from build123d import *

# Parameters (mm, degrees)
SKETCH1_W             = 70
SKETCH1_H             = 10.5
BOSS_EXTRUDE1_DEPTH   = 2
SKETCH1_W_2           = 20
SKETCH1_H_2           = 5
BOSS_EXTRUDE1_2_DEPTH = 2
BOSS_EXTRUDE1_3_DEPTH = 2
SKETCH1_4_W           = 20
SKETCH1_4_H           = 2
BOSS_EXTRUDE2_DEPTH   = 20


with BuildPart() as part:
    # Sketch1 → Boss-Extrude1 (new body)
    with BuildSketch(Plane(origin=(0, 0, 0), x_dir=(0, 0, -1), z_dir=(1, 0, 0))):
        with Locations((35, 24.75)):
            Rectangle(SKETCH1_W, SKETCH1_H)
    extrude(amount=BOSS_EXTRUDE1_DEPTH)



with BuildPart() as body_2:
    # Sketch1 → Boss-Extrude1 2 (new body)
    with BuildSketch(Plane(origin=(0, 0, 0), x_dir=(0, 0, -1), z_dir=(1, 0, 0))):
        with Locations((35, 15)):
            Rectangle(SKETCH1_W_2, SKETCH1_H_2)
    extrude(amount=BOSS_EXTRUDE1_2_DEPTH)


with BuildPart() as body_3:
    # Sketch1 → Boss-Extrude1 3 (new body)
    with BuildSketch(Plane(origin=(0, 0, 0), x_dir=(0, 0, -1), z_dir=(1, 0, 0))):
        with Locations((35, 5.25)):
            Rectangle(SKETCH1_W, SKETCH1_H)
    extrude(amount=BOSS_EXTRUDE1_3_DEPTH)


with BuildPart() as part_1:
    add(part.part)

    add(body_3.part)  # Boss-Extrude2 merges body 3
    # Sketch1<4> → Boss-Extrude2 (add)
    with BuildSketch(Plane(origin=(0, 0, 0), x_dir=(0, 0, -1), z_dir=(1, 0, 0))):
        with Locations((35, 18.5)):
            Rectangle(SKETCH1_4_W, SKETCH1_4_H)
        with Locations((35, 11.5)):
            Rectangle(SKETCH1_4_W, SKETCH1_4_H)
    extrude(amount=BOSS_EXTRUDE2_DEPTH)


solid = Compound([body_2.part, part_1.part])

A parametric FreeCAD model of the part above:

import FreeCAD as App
import Part
import Sketcher

V = App.Vector


def add_polygon(sketch, points):
    """Adds a closed chain of lines whose ends are joined by coincident constraints."""
    first, n = sketch.GeometryCount, len(points)
    for a, b in zip(points, points[1:] + points[:1]):
        sketch.addGeometry(Part.LineSegment(App.Vector(*a, 0), App.Vector(*b, 0)), False)
    for i in range(n):
        sketch.addConstraint(Sketcher.Constraint("Coincident", first + i, 2, first + (i + 1) % n, 1))

doc = App.newDocument("Part")
body = doc.addObject("PartDesign::Body", "Body")

# Sketch on YZ plane
sketch1 = body.newObject("Sketcher::SketchObject", "Sketch")
sketch1.AttachmentSupport = (doc.getObject("YZ_Plane"), [""])
sketch1.MapMode = "FlatFace"
add_polygon(sketch1, [(30, 0), (20, 0), (20, -70), (30, -70)])  # lines 0-3
sketch1.addConstraint(Sketcher.Constraint("Horizontal", 0))
sketch1.addConstraint(Sketcher.Constraint("Vertical", 1))
sketch1.addConstraint(Sketcher.Constraint("Horizontal", 2))
sketch1.addConstraint(Sketcher.Constraint("Vertical", 3))
sketch1.addConstraint(Sketcher.Constraint("PointOnObject", 0, 2, -1))
sketch1.addConstraint(Sketcher.Constraint("DistanceY", 1, 2, 1, 1, 70.0))
sketch1.addConstraint(Sketcher.Constraint("DistanceX", 0, 2, 0, 1, 10.5))
sketch1.addConstraint(Sketcher.Constraint("DistanceX", -1, 1, 2, 2, 30.0))
pad1 = body.newObject("PartDesign::Pad", "Pad")
pad1.Profile = sketch1
pad1.Length = 2
body2 = doc.addObject("PartDesign::Body", "Body001")

# Sketch on YZ plane
sketch2 = body2.newObject("Sketcher::SketchObject", "Sketch001")
sketch2.AttachmentSupport = (doc.getObject("YZ_Plane001"), [""])
sketch2.MapMode = "FlatFace"
add_polygon(sketch2, [(18, -25), (12, -25), (12, -45), (18, -45)])  # lines 0-3
sketch2.addConstraint(Sketcher.Constraint("Horizontal", 0))
sketch2.addConstraint(Sketcher.Constraint("Vertical", 1))
sketch2.addConstraint(Sketcher.Constraint("Horizontal", 2))
sketch2.addConstraint(Sketcher.Constraint("Vertical", 3))
sketch2.addConstraint(Sketcher.Constraint("DistanceX", 0, 2, 0, 1, 5.0))
sketch2.addConstraint(Sketcher.Constraint("DistanceY", 1, 2, 1, 1, 20.0))
sketch2.addConstraint(Sketcher.Constraint("DistanceY", 0, 2, -1, 1, 25.0))
sketch2.addConstraint(Sketcher.Constraint("DistanceX", -1, 1, 0, 2, 12.5))
pad2 = body2.newObject("PartDesign::Pad", "Pad001")
pad2.Profile = sketch2
pad2.Length = 2
body3 = doc.addObject("PartDesign::Body", "Body002")

# Sketch on YZ plane
sketch3 = body3.newObject("Sketcher::SketchObject", "Sketch002")
sketch3.AttachmentSupport = (doc.getObject("YZ_Plane002"), [""])
sketch3.MapMode = "FlatFace"
add_polygon(sketch3, [(10, 0), (0, 0), (0, -70), (10, -70)])  # lines 0-3
sketch3.addConstraint(Sketcher.Constraint("Horizontal", 0))
sketch3.addConstraint(Sketcher.Constraint("Vertical", 1))
sketch3.addConstraint(Sketcher.Constraint("Horizontal", 2))
sketch3.addConstraint(Sketcher.Constraint("Vertical", 3))
sketch3.addConstraint(Sketcher.Constraint("Coincident", 0, 2, -1, 1))
sketch3.addConstraint(Sketcher.Constraint("DistanceY", 1, 2, 1, 1, 70.0))
sketch3.addConstraint(Sketcher.Constraint("DistanceX", 0, 2, 0, 1, 10.5))
pad3 = body3.newObject("PartDesign::Pad", "Pad002")
pad3.Profile = sketch3
pad3.Length = 2
body.AllowCompound = True
doc.recompute()

boolean = body.newObject("PartDesign::Boolean", "Boolean")
boolean.Type = "Fuse"
boolean.addObjects([body3])

# Sketch on YZ plane
sketch4 = body.newObject("Sketcher::SketchObject", "Sketch003")
sketch4.AttachmentSupport = (doc.getObject("YZ_Plane"), [""])
sketch4.MapMode = "FlatFace"
add_polygon(sketch4, [(19.5, -25), (17.5, -25), (17.5, -45), (19.5, -45)])  # lines 0-3
add_polygon(sketch4, [(12.5, -25), (10.5, -25), (10.5, -45), (12.5, -45)])  # lines 4-7
sketch4.addConstraint(Sketcher.Constraint("Horizontal", 0))
sketch4.addConstraint(Sketcher.Constraint("Vertical", 1))
sketch4.addConstraint(Sketcher.Constraint("Horizontal", 2))
sketch4.addConstraint(Sketcher.Constraint("Vertical", 3))
sketch4.addConstraint(Sketcher.Constraint("Horizontal", 4))
sketch4.addConstraint(Sketcher.Constraint("Vertical", 5))
sketch4.addConstraint(Sketcher.Constraint("Horizontal", 6))
sketch4.addConstraint(Sketcher.Constraint("Vertical", 7))
sketch4.addConstraint(Sketcher.Constraint("Horizontal", 3, 2, 4, 2))
sketch4.addConstraint(Sketcher.Constraint("Horizontal", 2, 2, 5, 2))
sketch4.addConstraint(Sketcher.Constraint("Equal", 2, 4))
sketch4.addConstraint(Sketcher.Constraint("DistanceX", 0, 2, 0, 1, 2.0))
sketch4.addConstraint(Sketcher.Constraint("DistanceY", 1, 2, 1, 1, 20.0))
sketch4.addConstraint(Sketcher.Constraint("DistanceY", 0, 2, -1, 1, 25.0))
sketch4.addConstraint(Sketcher.Constraint("DistanceX", 4, 2, 0, 2, 7.0))
sketch4.addConstraint(Sketcher.Constraint("DistanceX", -1, 1, 0, 2, 17.5))
pad4 = body.newObject("PartDesign::Pad", "Pad003")
pad4.Profile = sketch4
pad4.Length = 20

doc.recompute()
